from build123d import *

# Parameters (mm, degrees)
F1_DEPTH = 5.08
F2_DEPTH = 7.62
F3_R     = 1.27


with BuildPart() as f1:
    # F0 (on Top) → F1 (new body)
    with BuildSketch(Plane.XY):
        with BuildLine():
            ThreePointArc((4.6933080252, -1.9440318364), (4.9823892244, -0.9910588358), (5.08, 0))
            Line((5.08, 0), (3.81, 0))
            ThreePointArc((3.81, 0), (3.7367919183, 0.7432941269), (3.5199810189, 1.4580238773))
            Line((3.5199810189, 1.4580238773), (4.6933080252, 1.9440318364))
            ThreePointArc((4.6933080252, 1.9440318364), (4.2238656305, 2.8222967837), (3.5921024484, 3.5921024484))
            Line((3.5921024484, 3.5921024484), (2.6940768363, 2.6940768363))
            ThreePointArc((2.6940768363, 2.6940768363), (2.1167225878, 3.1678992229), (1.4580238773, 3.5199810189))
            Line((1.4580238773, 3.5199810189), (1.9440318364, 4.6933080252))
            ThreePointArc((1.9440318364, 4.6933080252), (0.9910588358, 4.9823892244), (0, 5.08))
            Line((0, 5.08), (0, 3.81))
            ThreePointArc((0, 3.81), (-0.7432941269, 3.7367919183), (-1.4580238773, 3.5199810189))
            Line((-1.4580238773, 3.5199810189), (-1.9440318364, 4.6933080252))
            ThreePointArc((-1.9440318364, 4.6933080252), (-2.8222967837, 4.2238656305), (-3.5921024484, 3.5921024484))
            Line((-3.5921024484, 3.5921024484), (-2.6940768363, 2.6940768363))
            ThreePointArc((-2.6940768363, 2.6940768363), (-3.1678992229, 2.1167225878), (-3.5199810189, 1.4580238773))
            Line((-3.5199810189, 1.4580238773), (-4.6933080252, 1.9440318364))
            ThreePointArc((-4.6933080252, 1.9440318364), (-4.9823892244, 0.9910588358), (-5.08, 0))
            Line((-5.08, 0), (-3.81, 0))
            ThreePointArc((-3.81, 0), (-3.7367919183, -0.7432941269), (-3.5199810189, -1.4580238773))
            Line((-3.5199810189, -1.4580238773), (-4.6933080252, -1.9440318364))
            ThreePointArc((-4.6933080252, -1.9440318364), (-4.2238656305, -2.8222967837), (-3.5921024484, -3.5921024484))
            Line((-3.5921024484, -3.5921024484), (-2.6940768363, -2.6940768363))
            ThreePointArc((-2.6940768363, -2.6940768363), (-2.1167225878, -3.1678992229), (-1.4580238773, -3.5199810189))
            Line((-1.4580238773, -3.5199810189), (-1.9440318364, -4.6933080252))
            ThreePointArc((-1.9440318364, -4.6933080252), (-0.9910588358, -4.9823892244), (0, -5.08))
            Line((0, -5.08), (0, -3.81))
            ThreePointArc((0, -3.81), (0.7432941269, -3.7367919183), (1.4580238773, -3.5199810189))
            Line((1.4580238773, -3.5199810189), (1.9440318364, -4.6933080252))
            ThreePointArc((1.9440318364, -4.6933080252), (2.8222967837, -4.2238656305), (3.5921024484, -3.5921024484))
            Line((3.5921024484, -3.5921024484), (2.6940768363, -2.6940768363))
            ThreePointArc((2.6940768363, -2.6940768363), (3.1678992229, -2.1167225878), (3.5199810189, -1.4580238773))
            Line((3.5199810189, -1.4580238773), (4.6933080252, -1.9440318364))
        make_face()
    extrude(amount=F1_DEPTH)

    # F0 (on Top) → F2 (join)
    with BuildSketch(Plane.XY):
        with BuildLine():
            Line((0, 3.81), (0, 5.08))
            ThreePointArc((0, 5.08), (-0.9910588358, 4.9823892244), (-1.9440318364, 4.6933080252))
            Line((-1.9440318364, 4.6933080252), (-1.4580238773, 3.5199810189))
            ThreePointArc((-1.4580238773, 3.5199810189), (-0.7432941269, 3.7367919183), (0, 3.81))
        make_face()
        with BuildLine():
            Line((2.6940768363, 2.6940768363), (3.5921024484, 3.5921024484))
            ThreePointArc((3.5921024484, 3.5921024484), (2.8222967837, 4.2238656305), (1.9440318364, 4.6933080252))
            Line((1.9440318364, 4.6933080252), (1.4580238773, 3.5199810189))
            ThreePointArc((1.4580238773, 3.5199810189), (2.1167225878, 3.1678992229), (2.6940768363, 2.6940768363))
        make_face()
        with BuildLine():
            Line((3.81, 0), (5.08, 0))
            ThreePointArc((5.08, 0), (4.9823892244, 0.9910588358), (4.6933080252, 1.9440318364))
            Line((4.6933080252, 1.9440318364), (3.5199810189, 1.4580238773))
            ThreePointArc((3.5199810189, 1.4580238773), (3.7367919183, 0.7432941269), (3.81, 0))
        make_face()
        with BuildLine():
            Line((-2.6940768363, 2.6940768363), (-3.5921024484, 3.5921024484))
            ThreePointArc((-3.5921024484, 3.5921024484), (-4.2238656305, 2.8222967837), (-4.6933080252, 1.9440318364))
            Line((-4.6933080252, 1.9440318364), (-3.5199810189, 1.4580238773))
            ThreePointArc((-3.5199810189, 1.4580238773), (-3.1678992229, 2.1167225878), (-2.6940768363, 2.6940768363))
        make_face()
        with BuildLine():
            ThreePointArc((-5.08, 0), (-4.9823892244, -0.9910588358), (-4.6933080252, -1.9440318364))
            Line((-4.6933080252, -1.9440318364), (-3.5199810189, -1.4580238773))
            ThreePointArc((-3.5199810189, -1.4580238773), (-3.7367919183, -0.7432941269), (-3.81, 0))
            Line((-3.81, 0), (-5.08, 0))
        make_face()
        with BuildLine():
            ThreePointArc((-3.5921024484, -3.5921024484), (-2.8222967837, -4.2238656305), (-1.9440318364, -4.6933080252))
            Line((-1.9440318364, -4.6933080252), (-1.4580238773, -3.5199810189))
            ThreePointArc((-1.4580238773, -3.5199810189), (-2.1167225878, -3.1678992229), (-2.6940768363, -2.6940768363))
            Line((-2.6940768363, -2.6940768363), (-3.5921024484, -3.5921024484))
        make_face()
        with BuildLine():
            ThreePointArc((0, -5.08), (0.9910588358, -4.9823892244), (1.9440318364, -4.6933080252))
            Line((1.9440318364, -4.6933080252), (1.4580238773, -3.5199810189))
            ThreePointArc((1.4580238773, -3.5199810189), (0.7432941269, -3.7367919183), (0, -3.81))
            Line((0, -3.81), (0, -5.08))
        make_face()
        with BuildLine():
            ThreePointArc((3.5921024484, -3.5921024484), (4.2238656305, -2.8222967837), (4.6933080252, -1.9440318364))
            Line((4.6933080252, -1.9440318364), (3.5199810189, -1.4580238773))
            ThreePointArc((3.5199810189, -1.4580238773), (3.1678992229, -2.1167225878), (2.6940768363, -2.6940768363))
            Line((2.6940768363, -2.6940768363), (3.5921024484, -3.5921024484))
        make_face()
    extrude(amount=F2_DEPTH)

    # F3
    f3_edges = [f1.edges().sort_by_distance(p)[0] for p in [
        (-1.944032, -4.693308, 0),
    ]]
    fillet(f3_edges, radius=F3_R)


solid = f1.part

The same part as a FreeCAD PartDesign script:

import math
import FreeCAD as App
import Part
import Sketcher

V = App.Vector
Q = App.Units.Quantity


def edges_at(feature, points):
    """Names of the edges that pass closest to the given points."""
    edges = feature.Shape.Edges
    near = lambda p: min(range(len(edges)), key=lambda i: edges[i].distToShape(Part.Vertex(*p))[0])
    return sorted({f"Edge{near(p) + 1}" for p in points})

doc = App.newDocument("Part")
body = doc.addObject("PartDesign::Body", "Body")

sketch1 = body.newObject("Sketcher::SketchObject", "Sketch")
sketch1.AttachmentSupport = (doc.getObject("XY_Plane"), [""])
sketch1.MapMode = "FlatFace"
sketch1.addGeometry([
    Part.ArcOfCircle(Part.Circle(V(0, 0, 0), V(0, 0, 1), 5.1), math.radians(-22), math.radians(0)),
    Part.LineSegment(V(5.1, 0, 0), V(3.8, 0, 0)),
    Part.ArcOfCircle(Part.Circle(V(0, 0, 0), V(0, 0, 1), 3.8), math.radians(0), math.radians(22)),
    Part.LineSegment(V(3.5, 1.5, 0), V(4.7, 1.9, 0)),
    Part.ArcOfCircle(Part.Circle(V(0, 0, 0), V(0, 0, 1), 5.1), math.radians(23), math.radians(45)),
    Part.LineSegment(V(3.6, 3.6, 0), V(2.7, 2.7, 0)),
    Part.ArcOfCircle(Part.Circle(V(0, 0, 0), V(0, 0, 1), 3.8), math.radians(45), math.radians(68)),
    Part.LineSegment(V(1.5, 3.5, 0), V(1.9, 4.7, 0)),
    Part.ArcOfCircle(Part.Circle(V(0, 0, 0), V(0, 0, 1), 5.1), math.radians(68), math.radians(90)),
    Part.LineSegment(V(0, 5.1, 0), V(0, 3.8, 0)),
    Part.ArcOfCircle(Part.Circle(V(0, 0, 0), V(0, 0, 1), 3.8), math.radians(90), math.radians(112)),
    Part.LineSegment(V(-1.5, 3.5, 0), V(-1.9, 4.7, 0)),
    Part.ArcOfCircle(Part.Circle(V(0, 0, 0), V(0, 0, 1), 5.1), math.radians(113), math.radians(135)),
    Part.LineSegment(V(-3.6, 3.6, 0), V(-2.7, 2.7, 0)),
    Part.ArcOfCircle(Part.Circle(V(0, 0, 0), V(0, 0, 1), 3.8), math.radians(135), math.radians(158)),
    Part.LineSegment(V(-3.5, 1.5, 0), V(-4.7, 1.9, 0)),
    Part.ArcOfCircle(Part.Circle(V(0, 0, 0), V(0, 0, 1), 5.1), math.radians(158), math.radians(180)),
    Part.LineSegment(V(-5.1, 0, 0), V(-3.8, 0, 0)),
    Part.ArcOfCircle(Part.Circle(V(0, 0, 0), V(0, 0, 1), 3.8), math.radians(180), math.radians(202)),
    Part.LineSegment(V(-3.5, -1.5, 0), V(-4.7, -1.9, 0)),
    Part.ArcOfCircle(Part.Circle(V(0, 0, 0), V(0, 0, 1), 5.1), math.radians(-157), math.radians(-135)),
    Part.LineSegment(V(-3.6, -3.6, 0), V(-2.7, -2.7, 0)),
    Part.ArcOfCircle(Part.Circle(V(0, 0, 0), V(0, 0, 1), 3.8), math.radians(-135), math.radians(-112)),
    Part.LineSegment(V(-1.5, -3.5, 0), V(-1.9, -4.7, 0)),
    Part.ArcOfCircle(Part.Circle(V(0, 0, 0), V(0, 0, 1), 5.1), math.radians(-112), math.radians(-90)),
    Part.LineSegment(V(0, -5.1, 0), V(0, -3.8, 0)),
    Part.ArcOfCircle(Part.Circle(V(0, 0, 0), V(0, 0, 1), 3.8), math.radians(-90), math.radians(-68)),
    Part.LineSegment(V(1.5, -3.5, 0), V(1.9, -4.7, 0)),
    Part.ArcOfCircle(Part.Circle(V(0, 0, 0), V(0, 0, 1), 5.1), math.radians(-67), math.radians(-45)),
    Part.LineSegment(V(3.6, -3.6, 0), V(2.7, -2.7, 0)),
    Part.ArcOfCircle(Part.Circle(V(0, 0, 0), V(0, 0, 1), 3.8), math.radians(-45), math.radians(-22)),
    Part.LineSegment(V(3.5, -1.5, 0), V(4.7, -1.9, 0)),
], False)
sketch1.addConstraint([
    Sketcher.Constraint("Coincident", 0, 2, 1, 1),
    Sketcher.Constraint("Coincident", 1, 2, 2, 1),
    Sketcher.Constraint("Coincident", 2, 2, 3, 1),
    Sketcher.Constraint("Coincident", 3, 2, 4, 1),
    Sketcher.Constraint("Coincident", 4, 2, 5, 1),
    Sketcher.Constraint("Coincident", 5, 2, 6, 1),
    Sketcher.Constraint("Coincident", 6, 2, 7, 1),
    Sketcher.Constraint("Coincident", 7, 2, 8, 1),
    Sketcher.Constraint("Coincident", 8, 2, 9, 1),
    Sketcher.Constraint("Coincident", 9, 2, 10, 1),
    Sketcher.Constraint("Coincident", 10, 2, 11, 1),
    Sketcher.Constraint("Coincident", 11, 2, 12, 1),
    Sketcher.Constraint("Coincident", 12, 2, 13, 1),
    Sketcher.Constraint("Coincident", 13, 2, 14, 1),
    Sketcher.Constraint("Coincident", 14, 2, 15, 1),
    Sketcher.Constraint("Coincident", 15, 2, 16, 1),
    Sketcher.Constraint("Coincident", 16, 2, 17, 1),
    Sketcher.Constraint("Coincident", 17, 2, 18, 1),
    Sketcher.Constraint("Coincident", 18, 2, 19, 1),
    Sketcher.Constraint("Coincident", 19, 2, 20, 1),
    Sketcher.Constraint("Coincident", 20, 2, 21, 1),
    Sketcher.Constraint("Coincident", 21, 2, 22, 1),
    Sketcher.Constraint("Coincident", 22, 2, 23, 1),
    Sketcher.Constraint("Coincident", 23, 2, 24, 1),
    Sketcher.Constraint("Coincident", 24, 2, 25, 1),
    Sketcher.Constraint("Coincident", 25, 2, 26, 1),
    Sketcher.Constraint("Coincident", 26, 2, 27, 1),
    Sketcher.Constraint("Coincident", 27, 2, 28, 1),
    Sketcher.Constraint("Coincident", 28, 2, 29, 1),
    Sketcher.Constraint("Coincident", 29, 2, 30, 1),
    Sketcher.Constraint("Coincident", 30, 2, 31, 1),
    Sketcher.Constraint("Coincident", 31, 2, 0, 1),
    Sketcher.Constraint("Horizontal", 1),
    Sketcher.Constraint("Vertical", 9),
    Sketcher.Constraint("Horizontal", 17),
    Sketcher.Constraint("Vertical", 25),
    Sketcher.Constraint("Coincident", 0, 3, -1, 1),
    Sketcher.Constraint("Coincident", 2, 3, -1, 1),
    Sketcher.Constraint("Coincident", 4, 3, -1, 1),
    Sketcher.Constraint("Coincident", 6, 3, -1, 1),
    Sketcher.Constraint("Coincident", 8, 3, -1, 1),
    Sketcher.Constraint("Coincident", 10, 3, -1, 1),
    Sketcher.Constraint("Coincident", 12, 3, -1, 1),
    Sketcher.Constraint("Coincident", 14, 3, -1, 1),
    Sketcher.Constraint("Coincident", 16, 3, -1, 1),
    Sketcher.Constraint("Coincident", 18, 3, -1, 1),
    Sketcher.Constraint("Coincident", 20, 3, -1, 1),
    Sketcher.Constraint("Coincident", 22, 3, -1, 1),
    Sketcher.Constraint("Coincident", 24, 3, -1, 1),
    Sketcher.Constraint("Coincident", 26, 3, -1, 1),
    Sketcher.Constraint("Coincident", 28, 3, -1, 1),
    Sketcher.Constraint("Coincident", 30, 3, -1, 1),
    Sketcher.Constraint("Equal", 0, 4),
    Sketcher.Constraint("Equal", 2, 6),
    Sketcher.Constraint("Equal", 4, 8),
    Sketcher.Constraint("Equal", 6, 10),
    Sketcher.Constraint("Equal", 8, 12),
    Sketcher.Constraint("Equal", 10, 14),
    Sketcher.Constraint("Equal", 12, 16),
    Sketcher.Constraint("Equal", 14, 18),
    Sketcher.Constraint("Equal", 16, 20),
    Sketcher.Constraint("Equal", 18, 22),
    Sketcher.Constraint("Equal", 20, 24),
    Sketcher.Constraint("Equal", 22, 26),
    Sketcher.Constraint("Equal", 24, 28),
    Sketcher.Constraint("Equal", 26, 30),
    Sketcher.Constraint("PointOnObject", 0, 2, -1),
    Sketcher.Constraint("PointOnObject", 8, 2, -2),
    Sketcher.Constraint("PointOnObject", 16, 2, -1),
    Sketcher.Constraint("PointOnObject", 24, 2, -2),
    Sketcher.Constraint("Perpendicular", 3, 11),
    Sketcher.Constraint("Perpendicular", 5, 13),
    Sketcher.Constraint("Perpendicular", 7, 15),
    Sketcher.Constraint("Perpendicular", 11, 19),
    Sketcher.Constraint("Perpendicular", 13, 21),
    Sketcher.Constraint("Perpendicular", 15, 23),
    Sketcher.Constraint("Perpendicular", 19, 27),
    Sketcher.Constraint("Perpendicular", 21, 29),
    Sketcher.Constraint("Perpendicular", 23, 31),
    Sketcher.Constraint("Horizontal", 6, 2, 10, 2),
    Sketcher.Constraint("Horizontal", 7, 2, 11, 2),
    Sketcher.Constraint("Horizontal", 4, 2, 12, 2),
    Sketcher.Constraint("Horizontal", 5, 2, 13, 2),
    Sketcher.Constraint("Horizontal", 2, 2, 14, 2),
    Sketcher.Constraint("Horizontal", 22, 2, 26, 2),
    Sketcher.Constraint("Horizontal", 20, 2, 28, 2),
    Sketcher.Constraint("Horizontal", 18, 2, 30, 2),
    Sketcher.Constraint("Vertical", 14, 2, 18, 2),
    Sketcher.Constraint("Vertical", 12, 2, 20, 2),
    Sketcher.Constraint("Vertical", 10, 2, 22, 2),
    Sketcher.Constraint("Radius", 0, Q("0.2 in")),
    Sketcher.Constraint("Radius", 2, Q("0.15 in")),
    Sketcher.Constraint("Angle", 3, Q("22.5 deg")),
    Sketcher.Constraint("DistanceX", -1, 1, 2, 2, 3.519981),
    Sketcher.Constraint("DistanceY", -1, 1, 6, 2, 3.519981),
    Sketcher.Constraint("DistanceY", 3, 2, 4, 2, 1.648071),
])
pad1 = body.newObject("PartDesign::Pad", "Pad")
pad1.Profile = sketch1
pad1.Length = Q("0.2 in")

sketch2 = body.newObject("Sketcher::SketchObject", "Sketch001")
sketch2.AttachmentSupport = (doc.getObject("XY_Plane"), [""])
sketch2.MapMode = "FlatFace"
sketch2.addGeometry([
    Part.LineSegment(V(0, 3.8, 0), V(0, 5.1, 0)),
    Part.ArcOfCircle(Part.Circle(V(0, 0, 0), V(0, 0, 1), 5.1), math.radians(90), math.radians(112)),
    Part.LineSegment(V(-1.9, 4.7, 0), V(-1.5, 3.5, 0)),
    Part.ArcOfCircle(Part.Circle(V(0, 0, 0), V(0, 0, 1), 3.8), math.radians(90), math.radians(112)),
    Part.LineSegment(V(2.7, 2.7, 0), V(3.6, 3.6, 0)),
    Part.ArcOfCircle(Part.Circle(V(0, 0, 0), V(0, 0, 1), 5.1), math.radians(45), math.radians(67)),
    Part.LineSegment(V(1.9, 4.7, 0), V(1.5, 3.5, 0)),
    Part.ArcOfCircle(Part.Circle(V(0, 0, 0), V(0, 0, 1), 3.8), math.radians(45), math.radians(68)),
    Part.LineSegment(V(3.8, 0, 0), V(5.1, 0, 0)),
    Part.ArcOfCircle(Part.Circle(V(0, 0, 0), V(0, 0, 1), 5.1), math.radians(0), math.radians(22)),
    Part.LineSegment(V(4.7, 1.9, 0), V(3.5, 1.5, 0)),
    Part.ArcOfCircle(Part.Circle(V(0, 0, 0), V(0, 0, 1), 3.8), math.radians(0), math.radians(22)),
    Part.LineSegment(V(-2.7, 2.7, 0), V(-3.6, 3.6, 0)),
    Part.ArcOfCircle(Part.Circle(V(0, 0, 0), V(0, 0, 1), 5.1), math.radians(135), math.radians(157)),
    Part.LineSegment(V(-4.7, 1.9, 0), V(-3.5, 1.5, 0)),
    Part.ArcOfCircle(Part.Circle(V(0, 0, 0), V(0, 0, 1), 3.8), math.radians(135), math.radians(158)),
    Part.ArcOfCircle(Part.Circle(V(0, 0, 0), V(0, 0, 1), 5.1), math.radians(-180), math.radians(-158)),
    Part.LineSegment(V(-4.7, -1.9, 0), V(-3.5, -1.5, 0)),
    Part.ArcOfCircle(Part.Circle(V(0, 0, 0), V(0, 0, 1), 3.8), math.radians(180), math.radians(202)),
    Part.LineSegment(V(-3.8, 0, 0), V(-5.1, 0, 0)),
    Part.ArcOfCircle(Part.Circle(V(0, 0, 0), V(0, 0, 1), 5.1), math.radians(-135), math.radians(-113)),
    Part.LineSegment(V(-1.9, -4.7, 0), V(-1.5, -3.5, 0)),
    Part.ArcOfCircle(Part.Circle(V(0, 0, 0), V(0, 0, 1), 3.8), math.radians(-135), math.radians(-112)),
    Part.LineSegment(V(-2.7, -2.7, 0), V(-3.6, -3.6, 0)),
    Part.ArcOfCircle(Part.Circle(V(0, 0, 0), V(0, 0, 1), 5.1), math.radians(-90), math.radians(-68)),
    Part.LineSegment(V(1.9, -4.7, 0), V(1.5, -3.5, 0)),
    Part.ArcOfCircle(Part.Circle(V(0, 0, 0), V(0, 0, 1), 3.8), math.radians(-90), math.radians(-68)),
    Part.LineSegment(V(0, -3.8, 0), V(0, -5.1, 0)),
    Part.ArcOfCircle(Part.Circle(V(0, 0, 0), V(0, 0, 1), 5.1), math.radians(-45), math.radians(-23)),
    Part.LineSegment(V(4.7, -1.9, 0), V(3.5, -1.5, 0)),
    Part.ArcOfCircle(Part.Circle(V(0, 0, 0), V(0, 0, 1), 3.8), math.radians(-45), math.radians(-22)),
    Part.LineSegment(V(2.7, -2.7, 0), V(3.6, -3.6, 0)),
], False)
sketch2.addConstraint([
    Sketcher.Constraint("Coincident", 0, 2, 1, 1),
    Sketcher.Constraint("Coincident", 1, 2, 2, 1),
    Sketcher.Constraint("Coincident", 2, 2, 3, 2),
    Sketcher.Constraint("Coincident", 3, 1, 0, 1),
    Sketcher.Constraint("Coincident", 4, 2, 5, 1),
    Sketcher.Constraint("Coincident", 5, 2, 6, 1),
    Sketcher.Constraint("Coincident", 6, 2, 7, 2),
    Sketcher.Constraint("Coincident", 7, 1, 4, 1),
    Sketcher.Constraint("Coincident", 8, 2, 9, 1),
    Sketcher.Constraint("Coincident", 9, 2, 10, 1),
    Sketcher.Constraint("Coincident", 10, 2, 11, 2),
    Sketcher.Constraint("Coincident", 11, 1, 8, 1),
    Sketcher.Constraint("Coincident", 12, 2, 13, 1),
    Sketcher.Constraint("Coincident", 13, 2, 14, 1),
    Sketcher.Constraint("Coincident", 14, 2, 15, 2),
    Sketcher.Constraint("Coincident", 15, 1, 12, 1),
    Sketcher.Constraint("Coincident", 16, 2, 17, 1),
    Sketcher.Constraint("Coincident", 17, 2, 18, 2),
    Sketcher.Constraint("Coincident", 18, 1, 19, 1),
    Sketcher.Constraint("Coincident", 19, 2, 16, 1),
    Sketcher.Constraint("Coincident", 20, 2, 21, 1),
    Sketcher.Constraint("Coincident", 21, 2, 22, 2),
    Sketcher.Constraint("Coincident", 22, 1, 23, 1),
    Sketcher.Constraint("Coincident", 23, 2, 20, 1),
    Sketcher.Constraint("Coincident", 24, 2, 25, 1),
    Sketcher.Constraint("Coincident", 25, 2, 26, 2),
    Sketcher.Constraint("Coincident", 26, 1, 27, 1),
    Sketcher.Constraint("Coincident", 27, 2, 24, 1),
    Sketcher.Constraint("Coincident", 28, 2, 29, 1),
    Sketcher.Constraint("Coincident", 29, 2, 30, 2),
    Sketcher.Constraint("Coincident", 30, 1, 31, 1),
    Sketcher.Constraint("Coincident", 31, 2, 28, 1),
    Sketcher.Constraint("Vertical", 0),
    Sketcher.Constraint("Horizontal", 8),
    Sketcher.Constraint("Horizontal", 19),
    Sketcher.Constraint("Vertical", 27),
    Sketcher.Constraint("Coincident", 1, 3, -1, 1),
    Sketcher.Constraint("Coincident", 3, 3, -1, 1),
    Sketcher.Constraint("Coincident", 5, 3, -1, 1),
    Sketcher.Constraint("Coincident", 7, 3, -1, 1),
    Sketcher.Constraint("Coincident", 9, 3, -1, 1),
    Sketcher.Constraint("Coincident", 11, 3, -1, 1),
    Sketcher.Constraint("Coincident", 13, 3, -1, 1),
    Sketcher.Constraint("Coincident", 15, 3, -1, 1),
    Sketcher.Constraint("Coincident", 16, 3, -1, 1),
    Sketcher.Constraint("Coincident", 18, 3, -1, 1),
    Sketcher.Constraint("Coincident", 20, 3, -1, 1),
    Sketcher.Constraint("Coincident", 22, 3, -1, 1),
    Sketcher.Constraint("Coincident", 24, 3, -1, 1),
    Sketcher.Constraint("Coincident", 26, 3, -1, 1),
    Sketcher.Constraint("Coincident", 28, 3, -1, 1),
    Sketcher.Constraint("Coincident", 30, 3, -1, 1),
    Sketcher.Constraint("Equal", 1, 5),
    Sketcher.Constraint("Equal", 3, 7),
    Sketcher.Constraint("Equal", 5, 9),
    Sketcher.Constraint("Equal", 7, 11),
    Sketcher.Constraint("Equal", 9, 13),
    Sketcher.Constraint("Equal", 11, 15),
    Sketcher.Constraint("Equal", 13, 16),
    Sketcher.Constraint("Equal", 15, 18),
    Sketcher.Constraint("Equal", 16, 20),
    Sketcher.Constraint("Equal", 18, 22),
    Sketcher.Constraint("Equal", 20, 24),
    Sketcher.Constraint("Equal", 22, 26),
    Sketcher.Constraint("Equal", 24, 28),
    Sketcher.Constraint("Equal", 26, 30),
    Sketcher.Constraint("PointOnObject", 0, 2, -2),
    Sketcher.Constraint("PointOnObject", 8, 2, -1),
    Sketcher.Constraint("PointOnObject", 18, 1, -1),
    Sketcher.Constraint("PointOnObject", 26, 1, -2),
    Sketcher.Constraint("Perpendicular", 2, 10),
    Sketcher.Constraint("Perpendicular", 4, 12),
    Sketcher.Constraint("Perpendicular", 6, 14),
    Sketcher.Constraint("Parallel", 10, 17),
    Sketcher.Constraint("Perpendicular", 14, 21),
    Sketcher.Constraint("Perpendicular", 12, 23),
    Sketcher.Constraint("Perpendicular", 17, 25),
    Sketcher.Constraint("Perpendicular", 21, 29),
    Sketcher.Constraint("Perpendicular", 23, 31),
    Sketcher.Constraint("Horizontal", 1, 2, 5, 2),
    Sketcher.Constraint("Horizontal", 2, 2, 6, 2),
    Sketcher.Constraint("Horizontal", 4, 2, 12, 2),
    Sketcher.Constraint("Horizontal", 9, 2, 13, 2),
    Sketcher.Constraint("Horizontal", 7, 1, 15, 1),
    Sketcher.Constraint("Horizontal", 20, 2, 24, 2),
    Sketcher.Constraint("Horizontal", 16, 2, 28, 2),
    Sketcher.Constraint("Horizontal", 22, 1, 30, 1),
    Sketcher.Constraint("Vertical", 13, 2, 16, 2),
    Sketcher.Constraint("Vertical", 1, 2, 20, 2),
    Sketcher.Constraint("Vertical", 15, 1, 22, 1),
    Sketcher.Constraint("Radius", 1, Q("0.2 in")),
    Sketcher.Constraint("Radius", 3, Q("0.15 in")),
    Sketcher.Constraint("Angle", 2, Q("-67.5 deg")),
    Sketcher.Constraint("DistanceX", 1, 2, -1, 1, 1.944032),
    Sketcher.Constraint("DistanceX", -1, 1, 9, 2, 4.693308),
    Sketcher.Constraint("DistanceY", 2, 2, 4, 2, 0.072121),
])
pad2 = body.newObject("PartDesign::Pad", "Pad001")
pad2.Profile = sketch2
pad2.Length = Q("0.3 in")
doc.recompute()

fillet = body.newObject("PartDesign::Fillet", "Fillet")
fillet.Base = (pad2, edges_at(pad2, [(-2.822, -4.224, 0)]))
fillet.Radius = Q("0.05 in")

doc.recompute()
